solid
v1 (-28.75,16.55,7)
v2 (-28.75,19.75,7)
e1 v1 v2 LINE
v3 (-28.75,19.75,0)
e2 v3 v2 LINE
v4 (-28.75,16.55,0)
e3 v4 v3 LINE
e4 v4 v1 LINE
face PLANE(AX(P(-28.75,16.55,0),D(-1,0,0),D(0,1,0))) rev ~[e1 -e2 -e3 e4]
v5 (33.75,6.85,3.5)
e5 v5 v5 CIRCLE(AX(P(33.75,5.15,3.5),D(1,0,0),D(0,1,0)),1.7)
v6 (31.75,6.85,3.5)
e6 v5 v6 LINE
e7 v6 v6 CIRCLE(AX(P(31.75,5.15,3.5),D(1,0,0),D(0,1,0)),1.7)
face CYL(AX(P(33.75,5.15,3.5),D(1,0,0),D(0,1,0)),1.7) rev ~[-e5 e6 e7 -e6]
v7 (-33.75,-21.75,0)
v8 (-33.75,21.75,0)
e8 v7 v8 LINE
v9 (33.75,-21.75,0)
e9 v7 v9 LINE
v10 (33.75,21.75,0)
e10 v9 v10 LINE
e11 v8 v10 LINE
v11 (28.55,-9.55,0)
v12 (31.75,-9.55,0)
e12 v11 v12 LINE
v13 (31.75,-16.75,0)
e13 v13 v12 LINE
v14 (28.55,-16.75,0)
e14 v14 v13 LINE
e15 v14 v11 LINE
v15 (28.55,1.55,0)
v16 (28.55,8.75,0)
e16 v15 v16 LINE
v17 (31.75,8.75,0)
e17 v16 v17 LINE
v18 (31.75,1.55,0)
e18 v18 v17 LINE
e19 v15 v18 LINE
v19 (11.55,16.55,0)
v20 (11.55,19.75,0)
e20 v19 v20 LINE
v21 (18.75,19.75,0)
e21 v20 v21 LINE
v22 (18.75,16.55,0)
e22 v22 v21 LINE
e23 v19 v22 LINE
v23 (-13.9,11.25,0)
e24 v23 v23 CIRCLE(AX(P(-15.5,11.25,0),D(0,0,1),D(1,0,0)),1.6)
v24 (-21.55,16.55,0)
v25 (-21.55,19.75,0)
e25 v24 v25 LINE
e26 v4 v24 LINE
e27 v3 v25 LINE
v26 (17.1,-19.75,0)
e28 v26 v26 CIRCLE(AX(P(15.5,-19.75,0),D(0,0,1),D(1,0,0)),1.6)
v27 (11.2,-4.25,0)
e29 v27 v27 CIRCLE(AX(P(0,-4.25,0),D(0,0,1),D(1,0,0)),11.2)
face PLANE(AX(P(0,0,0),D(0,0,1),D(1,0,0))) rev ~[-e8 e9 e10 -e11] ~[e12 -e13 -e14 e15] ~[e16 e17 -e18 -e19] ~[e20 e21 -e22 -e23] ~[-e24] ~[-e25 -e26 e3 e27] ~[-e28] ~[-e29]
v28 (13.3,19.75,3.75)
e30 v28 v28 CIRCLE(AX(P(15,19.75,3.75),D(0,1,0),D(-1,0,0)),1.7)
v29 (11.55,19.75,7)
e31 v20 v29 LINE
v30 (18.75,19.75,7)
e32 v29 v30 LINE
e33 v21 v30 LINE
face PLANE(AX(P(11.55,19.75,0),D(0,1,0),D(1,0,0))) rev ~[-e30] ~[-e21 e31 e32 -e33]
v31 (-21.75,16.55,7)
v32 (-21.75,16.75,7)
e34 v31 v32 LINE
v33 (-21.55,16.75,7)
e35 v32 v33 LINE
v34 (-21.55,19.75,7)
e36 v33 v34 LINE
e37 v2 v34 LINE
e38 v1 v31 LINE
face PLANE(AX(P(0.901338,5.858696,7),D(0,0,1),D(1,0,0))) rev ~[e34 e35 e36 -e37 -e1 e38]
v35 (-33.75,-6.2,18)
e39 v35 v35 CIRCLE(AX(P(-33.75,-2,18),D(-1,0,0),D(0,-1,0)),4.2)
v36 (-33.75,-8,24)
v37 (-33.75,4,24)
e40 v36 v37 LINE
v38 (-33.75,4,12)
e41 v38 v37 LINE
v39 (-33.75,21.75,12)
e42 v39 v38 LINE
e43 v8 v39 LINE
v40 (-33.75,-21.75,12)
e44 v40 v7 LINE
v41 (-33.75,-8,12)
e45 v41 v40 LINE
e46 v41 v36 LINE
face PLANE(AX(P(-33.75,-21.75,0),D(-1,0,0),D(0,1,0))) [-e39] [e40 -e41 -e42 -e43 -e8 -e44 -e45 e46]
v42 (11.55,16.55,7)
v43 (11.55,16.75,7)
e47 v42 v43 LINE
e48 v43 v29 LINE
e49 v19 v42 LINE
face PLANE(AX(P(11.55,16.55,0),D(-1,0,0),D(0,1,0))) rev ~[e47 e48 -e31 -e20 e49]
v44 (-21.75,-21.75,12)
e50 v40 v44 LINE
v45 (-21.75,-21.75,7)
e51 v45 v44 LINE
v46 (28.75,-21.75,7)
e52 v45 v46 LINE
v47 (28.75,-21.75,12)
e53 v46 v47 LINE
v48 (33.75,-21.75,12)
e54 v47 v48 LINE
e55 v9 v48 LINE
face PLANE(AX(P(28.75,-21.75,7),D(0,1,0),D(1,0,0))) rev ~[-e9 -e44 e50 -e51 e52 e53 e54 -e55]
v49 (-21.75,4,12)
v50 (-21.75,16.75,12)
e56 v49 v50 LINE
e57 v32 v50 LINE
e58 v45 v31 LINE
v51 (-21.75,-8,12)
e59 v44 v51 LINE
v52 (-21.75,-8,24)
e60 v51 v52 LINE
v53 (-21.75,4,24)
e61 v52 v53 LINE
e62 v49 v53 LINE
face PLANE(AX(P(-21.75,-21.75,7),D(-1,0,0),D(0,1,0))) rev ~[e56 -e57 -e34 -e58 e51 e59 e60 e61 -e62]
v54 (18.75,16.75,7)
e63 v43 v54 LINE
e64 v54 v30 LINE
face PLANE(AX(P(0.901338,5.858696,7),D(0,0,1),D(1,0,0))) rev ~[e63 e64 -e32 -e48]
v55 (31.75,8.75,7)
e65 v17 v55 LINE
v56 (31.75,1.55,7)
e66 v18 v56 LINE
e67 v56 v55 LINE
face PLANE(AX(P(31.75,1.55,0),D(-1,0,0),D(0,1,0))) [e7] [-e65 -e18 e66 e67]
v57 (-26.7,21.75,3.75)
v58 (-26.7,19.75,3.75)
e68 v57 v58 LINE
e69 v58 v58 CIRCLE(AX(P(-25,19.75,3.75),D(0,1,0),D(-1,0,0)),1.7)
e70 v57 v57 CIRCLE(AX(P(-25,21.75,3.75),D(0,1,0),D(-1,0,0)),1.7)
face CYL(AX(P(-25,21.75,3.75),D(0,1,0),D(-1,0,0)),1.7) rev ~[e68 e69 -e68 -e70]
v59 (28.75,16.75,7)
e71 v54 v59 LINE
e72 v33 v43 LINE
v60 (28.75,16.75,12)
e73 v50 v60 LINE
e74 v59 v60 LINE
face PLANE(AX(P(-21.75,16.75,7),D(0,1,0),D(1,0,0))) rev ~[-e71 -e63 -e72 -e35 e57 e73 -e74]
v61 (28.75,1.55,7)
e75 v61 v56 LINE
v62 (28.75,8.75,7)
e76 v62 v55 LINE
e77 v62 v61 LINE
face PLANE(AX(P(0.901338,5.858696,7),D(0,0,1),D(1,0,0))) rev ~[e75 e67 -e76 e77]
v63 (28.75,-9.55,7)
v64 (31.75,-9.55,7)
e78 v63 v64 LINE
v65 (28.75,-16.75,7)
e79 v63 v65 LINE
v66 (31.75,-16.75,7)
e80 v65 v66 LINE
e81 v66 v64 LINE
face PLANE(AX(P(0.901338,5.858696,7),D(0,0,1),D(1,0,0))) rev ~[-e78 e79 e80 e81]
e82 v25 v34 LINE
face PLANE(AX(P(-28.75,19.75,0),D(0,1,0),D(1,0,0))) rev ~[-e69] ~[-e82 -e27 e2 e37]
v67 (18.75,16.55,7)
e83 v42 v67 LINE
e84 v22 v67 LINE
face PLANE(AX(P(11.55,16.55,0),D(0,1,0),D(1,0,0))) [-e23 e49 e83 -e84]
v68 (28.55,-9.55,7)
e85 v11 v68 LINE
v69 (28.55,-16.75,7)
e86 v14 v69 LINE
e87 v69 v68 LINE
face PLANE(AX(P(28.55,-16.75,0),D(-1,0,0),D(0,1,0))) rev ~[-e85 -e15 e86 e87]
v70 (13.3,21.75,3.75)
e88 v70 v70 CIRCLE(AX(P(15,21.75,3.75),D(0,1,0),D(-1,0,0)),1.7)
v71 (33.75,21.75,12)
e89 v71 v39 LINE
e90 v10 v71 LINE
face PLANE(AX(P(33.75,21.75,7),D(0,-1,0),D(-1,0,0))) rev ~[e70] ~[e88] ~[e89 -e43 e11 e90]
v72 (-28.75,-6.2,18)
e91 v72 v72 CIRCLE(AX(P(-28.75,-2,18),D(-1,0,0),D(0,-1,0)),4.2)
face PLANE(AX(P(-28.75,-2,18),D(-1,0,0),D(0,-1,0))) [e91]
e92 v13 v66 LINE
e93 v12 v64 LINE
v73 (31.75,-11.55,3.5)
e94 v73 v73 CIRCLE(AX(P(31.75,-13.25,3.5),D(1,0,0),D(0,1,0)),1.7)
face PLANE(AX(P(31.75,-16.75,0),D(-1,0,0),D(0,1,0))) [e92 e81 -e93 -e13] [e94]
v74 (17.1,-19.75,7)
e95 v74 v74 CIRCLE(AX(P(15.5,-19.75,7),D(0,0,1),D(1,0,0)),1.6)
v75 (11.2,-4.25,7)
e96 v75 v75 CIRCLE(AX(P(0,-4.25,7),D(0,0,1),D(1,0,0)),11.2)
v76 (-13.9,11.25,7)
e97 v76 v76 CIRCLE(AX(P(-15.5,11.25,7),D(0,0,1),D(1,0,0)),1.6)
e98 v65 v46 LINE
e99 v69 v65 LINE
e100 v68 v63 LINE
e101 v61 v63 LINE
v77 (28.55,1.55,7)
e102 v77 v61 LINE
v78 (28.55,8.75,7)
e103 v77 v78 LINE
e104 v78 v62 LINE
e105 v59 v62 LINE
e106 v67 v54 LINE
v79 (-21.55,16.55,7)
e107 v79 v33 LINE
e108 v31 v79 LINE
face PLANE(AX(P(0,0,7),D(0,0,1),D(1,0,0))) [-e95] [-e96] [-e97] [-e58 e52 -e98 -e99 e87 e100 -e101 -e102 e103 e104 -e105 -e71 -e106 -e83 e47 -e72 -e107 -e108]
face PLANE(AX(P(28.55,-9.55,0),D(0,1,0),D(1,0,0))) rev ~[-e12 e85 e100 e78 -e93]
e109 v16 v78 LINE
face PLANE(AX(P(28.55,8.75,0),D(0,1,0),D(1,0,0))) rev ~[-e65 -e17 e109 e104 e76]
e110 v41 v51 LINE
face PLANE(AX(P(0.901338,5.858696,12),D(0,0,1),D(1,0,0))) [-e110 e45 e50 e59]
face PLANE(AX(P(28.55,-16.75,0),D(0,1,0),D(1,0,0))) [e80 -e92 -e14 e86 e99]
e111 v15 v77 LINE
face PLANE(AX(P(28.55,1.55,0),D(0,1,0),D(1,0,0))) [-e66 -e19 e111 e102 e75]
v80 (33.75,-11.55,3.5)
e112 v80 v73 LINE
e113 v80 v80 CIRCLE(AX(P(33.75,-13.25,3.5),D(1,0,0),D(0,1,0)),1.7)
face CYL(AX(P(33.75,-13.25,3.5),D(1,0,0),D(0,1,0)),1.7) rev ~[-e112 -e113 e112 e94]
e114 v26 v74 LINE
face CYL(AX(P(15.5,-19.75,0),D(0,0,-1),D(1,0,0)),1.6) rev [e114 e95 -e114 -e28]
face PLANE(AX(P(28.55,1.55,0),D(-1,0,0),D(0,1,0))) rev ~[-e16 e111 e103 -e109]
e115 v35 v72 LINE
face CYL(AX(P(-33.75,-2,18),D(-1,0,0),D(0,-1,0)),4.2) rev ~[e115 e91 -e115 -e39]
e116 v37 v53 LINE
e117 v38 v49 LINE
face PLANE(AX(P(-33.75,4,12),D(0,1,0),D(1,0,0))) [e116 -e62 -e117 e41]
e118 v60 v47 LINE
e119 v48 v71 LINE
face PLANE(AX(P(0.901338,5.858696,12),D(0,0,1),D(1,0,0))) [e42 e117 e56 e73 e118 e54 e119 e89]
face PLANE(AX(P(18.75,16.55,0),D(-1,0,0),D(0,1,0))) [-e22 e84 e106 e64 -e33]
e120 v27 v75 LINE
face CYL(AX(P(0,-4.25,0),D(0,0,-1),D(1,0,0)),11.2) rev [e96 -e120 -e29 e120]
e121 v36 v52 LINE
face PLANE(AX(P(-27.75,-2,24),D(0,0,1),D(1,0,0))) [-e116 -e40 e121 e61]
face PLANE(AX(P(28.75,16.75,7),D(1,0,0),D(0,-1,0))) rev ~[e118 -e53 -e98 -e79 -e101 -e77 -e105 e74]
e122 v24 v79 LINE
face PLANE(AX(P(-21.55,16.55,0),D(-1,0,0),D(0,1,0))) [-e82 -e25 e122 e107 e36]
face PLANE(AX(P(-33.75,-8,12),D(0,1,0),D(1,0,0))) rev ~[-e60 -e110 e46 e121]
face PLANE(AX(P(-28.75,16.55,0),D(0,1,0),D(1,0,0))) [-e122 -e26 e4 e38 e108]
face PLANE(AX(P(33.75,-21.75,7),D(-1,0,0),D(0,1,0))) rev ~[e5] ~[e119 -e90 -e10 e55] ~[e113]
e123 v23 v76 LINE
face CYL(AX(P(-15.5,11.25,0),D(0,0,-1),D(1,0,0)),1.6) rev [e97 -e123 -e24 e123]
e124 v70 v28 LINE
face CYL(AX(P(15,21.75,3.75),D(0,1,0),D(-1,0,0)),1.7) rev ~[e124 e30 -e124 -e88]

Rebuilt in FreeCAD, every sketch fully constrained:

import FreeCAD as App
import Part
import Sketcher

V = App.Vector


def add_polygon(sketch, points):
    """Adds a closed chain of lines whose ends are joined by coincident constraints."""
    first, n = sketch.GeometryCount, len(points)
    for a, b in zip(points, points[1:] + points[:1]):
        sketch.addGeometry(Part.LineSegment(App.Vector(*a, 0), App.Vector(*b, 0)), False)
    for i in range(n):
        sketch.addConstraint(Sketcher.Constraint("Coincident", first + i, 2, first + (i + 1) % n, 1))

doc = App.newDocument("Part")
params = doc.addObject("Spreadsheet::Sheet", "Params")
for row, (alias, value) in enumerate([
    ("sketch1_diameter", "22.4 mm"),
    ("sketch1_diameter2", "3.2 mm"),
    ("sketch1_width", "67.5 mm"),
    ("sketch1_width2", "3.2 mm"),
    ("sketch1_width3", "7.2 mm"),
    ("pad1_length", "7 mm"),
    ("sketch2_width", "5 mm"),
    ("sketch2_width2", "12 mm"),
    ("sketch2_width3", "67.5 mm"),
    ("sketch2_height", "43.5 mm"),
    ("sketch2_height2", "38.5 mm"),
    ("pad2_length", "5 mm"),
    ("sketch3_width", "12 mm"),
    ("pad3_length", "12 mm"),
    ("sketch4_diameter", "8.4 mm"),
    ("pocket1_length", "5 mm"),
    ("sketch5_diameter", "3.4 mm"),
    ("pocket2_length", "5 mm"),
    ("sketch6_diameter", "3.4 mm"),
    ("pocket3_length", "5 mm"),
], start=1):
    params.set(f"A{row}", alias)
    params.set(f"B{row}", "=" + value)
    params.setAlias(f"B{row}", alias)

body = doc.addObject("PartDesign::Body", "Body")

sketch1 = doc.addObject("Sketcher::SketchObject", "Sketch")
body.addObject(sketch1)
sketch1.AttachmentSupport = (doc.XY_Plane, [""])
sketch1.MapMode = "FlatFace"
add_polygon(sketch1, [(-33.8, 21.8), (-33.8, -21.8), (33.8, -21.8), (33.8, 21.8)])
sketch1.addGeometry(Part.Circle(V(0, -4.2, 0), V(0, 0, 1), 11.2), False)
sketch1.addGeometry(Part.Circle(V(15.5, -19.8, 0), V(0, 0, 1), 1.6), False)
add_polygon(sketch1, [(31.8, -16.8), (28.6, -16.8), (28.6, -9.6), (31.8, -9.6)])
sketch1.addGeometry(Part.Circle(V(-15.5, 11.2, 0), V(0, 0, 1), 1.6), False)
add_polygon(sketch1, [(-21.6, 16.6), (-28.8, 16.6), (-28.8, 19.8), (-21.6, 19.8)])
add_polygon(sketch1, [(31.8, 1.6), (28.6, 1.6), (28.6, 8.8), (31.8, 8.8)])
add_polygon(sketch1, [(18.8, 16.6), (11.6, 16.6), (11.6, 19.8), (18.8, 19.8)])
sketch1.addConstraint(Sketcher.Constraint("Vertical", 0))
sketch1.addConstraint(Sketcher.Constraint("Horizontal", 1))
sketch1.addConstraint(Sketcher.Constraint("Vertical", 2))
sketch1.addConstraint(Sketcher.Constraint("Horizontal", 3))
sketch1.addConstraint(Sketcher.Constraint("Horizontal", 6))
sketch1.addConstraint(Sketcher.Constraint("Vertical", 7))
sketch1.addConstraint(Sketcher.Constraint("Horizontal", 8))
sketch1.addConstraint(Sketcher.Constraint("Vertical", 9))
sketch1.addConstraint(Sketcher.Constraint("Horizontal", 11))
sketch1.addConstraint(Sketcher.Constraint("Vertical", 12))
sketch1.addConstraint(Sketcher.Constraint("Horizontal", 13))
sketch1.addConstraint(Sketcher.Constraint("Vertical", 14))
sketch1.addConstraint(Sketcher.Constraint("Horizontal", 15))
sketch1.addConstraint(Sketcher.Constraint("Vertical", 16))
sketch1.addConstraint(Sketcher.Constraint("Horizontal", 17))
sketch1.addConstraint(Sketcher.Constraint("Vertical", 18))
sketch1.addConstraint(Sketcher.Constraint("Horizontal", 19))
sketch1.addConstraint(Sketcher.Constraint("Vertical", 20))
sketch1.addConstraint(Sketcher.Constraint("Horizontal", 21))
sketch1.addConstraint(Sketcher.Constraint("Vertical", 22))
sketch1.addConstraint(Sketcher.Constraint("Equal", 5, 10))
sketch1.addConstraint(Sketcher.Constraint("Symmetric", 0, 2, 2, 2, -1, 1))
sketch1.addConstraint(Sketcher.Constraint("PointOnObject", 4, 3, -2))
sketch1.addConstraint(Sketcher.Constraint("Horizontal", 14, 2, 19, 2))
sketch1.addConstraint(Sketcher.Constraint("Horizontal", 13, 2, 20, 2))
sketch1.addConstraint(Sketcher.Constraint("Vertical", 7, 2, 15, 2))
sketch1.addConstraint(Sketcher.Constraint("Vertical", 9, 2, 17, 2))
sketch1.addConstraint(Sketcher.Constraint("Equal", 13, 19))
sketch1.addConstraint(Sketcher.Constraint("Equal", 21, 7))
sketch1.addConstraint(Sketcher.Constraint("Equal", 17, 12))
sketch1.addConstraint(Sketcher.Constraint("Equal", 9, 16))
sketch1.addConstraint(Sketcher.Constraint("Diameter", 4, 22.4))
sketch1.addConstraint(Sketcher.Constraint("Diameter", 5, 3.2))
sketch1.addConstraint(Sketcher.Constraint("DistanceX", 1, 1, 1, 2, 67.5))
sketch1.addConstraint(Sketcher.Constraint("DistanceX", 6, 2, 6, 1, 3.2))
sketch1.addConstraint(Sketcher.Constraint("DistanceX", 11, 2, 11, 1, 7.2))
sketch1.addConstraint(Sketcher.Constraint("DistanceY", 0, 2, 0, 1, 43.5))
sketch1.addConstraint(Sketcher.Constraint("DistanceX", 10, 3, 5, 3, 31.0))
sketch1.addConstraint(Sketcher.Constraint("DistanceY", 5, 3, 10, 3, 31.0))
sketch1.addConstraint(Sketcher.Constraint("DistanceY", 0, 2, 10, 3, 33.0))
sketch1.addConstraint(Sketcher.Constraint("DistanceY", 4, 3, 2, 2, 26.0))
sketch1.addConstraint(Sketcher.Constraint("DistanceY", 1, 2, 6, 2, 5.0))
sketch1.addConstraint(Sketcher.Constraint("DistanceX", 8, 2, 1, 2, 2.0))
sketch1.addConstraint(Sketcher.Constraint("DistanceX", 3, 2, 11, 2, 5.0))
sketch1.addConstraint(Sketcher.Constraint("DistanceY", 12, 2, 3, 2, 2.0))
sketch1.addConstraint(Sketcher.Constraint("DistanceY", 16, 2, 2, 2, 13.0))
sketch1.addConstraint(Sketcher.Constraint("DistanceX", 19, 2, 16, 2, 17.0))
sketch1.addConstraint(Sketcher.Constraint("DistanceX", -1, 1, 5, 3, 15.5))
sketch1.setExpression("Constraints[51]", "Params.sketch1_diameter")
sketch1.setExpression("Constraints[52]", "Params.sketch1_diameter2")
sketch1.setExpression("Constraints[53]", "Params.sketch1_width")
sketch1.setExpression("Constraints[54]", "Params.sketch1_width2")
sketch1.setExpression("Constraints[55]", "Params.sketch1_width3")
pad1 = doc.addObject("PartDesign::Pad", "Pad")
body.addObject(pad1)
pad1.Profile = sketch1
pad1.setExpression("Length", "Params.pad1_length")

sketch2 = doc.addObject("Sketcher::SketchObject", "Sketch001")
body.addObject(sketch2)
sketch2.AttachmentSupport = (doc.XY_Plane, [""])
sketch2.MapMode = "FlatFace"
sketch2.AttachmentOffset = App.Placement(V(0, 0, 7), App.Rotation())
add_polygon(sketch2, [(29, -22), (34, -22), (34, 22), (-34, 22), (-34, -22), (-22, -22), (-22, 17), (29, 17)])
sketch2.addConstraint(Sketcher.Constraint("Horizontal", 0))
sketch2.addConstraint(Sketcher.Constraint("Vertical", 1))
sketch2.addConstraint(Sketcher.Constraint("Horizontal", 2))
sketch2.addConstraint(Sketcher.Constraint("Vertical", 3))
sketch2.addConstraint(Sketcher.Constraint("Horizontal", 4))
sketch2.addConstraint(Sketcher.Constraint("Vertical", 5))
sketch2.addConstraint(Sketcher.Constraint("Horizontal", 6))
sketch2.addConstraint(Sketcher.Constraint("Vertical", 7))
sketch2.addConstraint(Sketcher.Constraint("Symmetric", 0, 2, 2, 2, -1, 1))
sketch2.addConstraint(Sketcher.Constraint("Horizontal", 0, 2, 3, 2))
sketch2.addConstraint(Sketcher.Constraint("DistanceX", 0, 1, 0, 2, 5.0))
sketch2.addConstraint(Sketcher.Constraint("DistanceX", 4, 1, 4, 2, 12.0))
sketch2.addConstraint(Sketcher.Constraint("DistanceX", 2, 2, 2, 1, 67.5))
sketch2.addConstraint(Sketcher.Constraint("DistanceY", 1, 1, 1, 2, 43.5))
sketch2.addConstraint(Sketcher.Constraint("DistanceY", 5, 1, 5, 2, 38.5))
sketch2.setExpression("Constraints[18]", "Params.sketch2_width")
sketch2.setExpression("Constraints[19]", "Params.sketch2_width2")
sketch2.setExpression("Constraints[20]", "Params.sketch2_width3")
sketch2.setExpression("Constraints[21]", "Params.sketch2_height")
sketch2.setExpression("Constraints[22]", "Params.sketch2_height2")
pad2 = doc.addObject("PartDesign::Pad", "Pad001")
body.addObject(pad2)
pad2.Profile = sketch2
pad2.setExpression("Length", "Params.pad2_length")

sketch3 = doc.addObject("Sketcher::SketchObject", "Sketch002")
body.addObject(sketch3)
sketch3.AttachmentSupport = (doc.XY_Plane, [""])
sketch3.MapMode = "FlatFace"
sketch3.AttachmentOffset = App.Placement(V(0, 0, 12), App.Rotation())
add_polygon(sketch3, [(-34, 4), (-34, -8), (-22, -8), (-22, 4)])
sketch3.addConstraint(Sketcher.Constraint("Vertical", 0))
sketch3.addConstraint(Sketcher.Constraint("Horizontal", 1))
sketch3.addConstraint(Sketcher.Constraint("Vertical", 2))
sketch3.addConstraint(Sketcher.Constraint("Horizontal", 3))
sketch3.addConstraint(Sketcher.Constraint("Equal", 3, 0))
sketch3.addConstraint(Sketcher.Constraint("DistanceX", 1, 1, 1, 2, 12.0))
sketch3.addConstraint(Sketcher.Constraint("DistanceY", 0, 2, -1, 1, 8.0))
sketch3.addConstraint(Sketcher.Constraint("DistanceX", 0, 2, -1, 1, 33.75))
sketch3.setExpression("Constraints[9]", "Params.sketch3_width")
pad3 = doc.addObject("PartDesign::Pad", "Pad002")
body.addObject(pad3)
pad3.Profile = sketch3
pad3.setExpression("Length", "Params.pad3_length")

sketch4 = doc.addObject("Sketcher::SketchObject", "Sketch003")
body.addObject(sketch4)
sketch4.AttachmentSupport = (doc.YZ_Plane, [""])
sketch4.MapMode = "FlatFace"
sketch4.AttachmentOffset = App.Placement(V(0, 0, -33.75), App.Rotation())
sketch4.addGeometry(Part.Circle(V(-2, 18, 0), V(0, 0, 1), 4.2), False)
sketch4.addConstraint(Sketcher.Constraint("Diameter", 0, 8.4))
sketch4.addConstraint(Sketcher.Constraint("DistanceX", 0, 3, -1, 1, 2.0))
sketch4.addConstraint(Sketcher.Constraint("DistanceY", -1, 1, 0, 3, 18.0))
sketch4.setExpression("Constraints[0]", "Params.sketch4_diameter")
pocket1 = doc.addObject("PartDesign::Pocket", "Pocket")
body.addObject(pocket1)
pocket1.Profile = sketch4
pocket1.setExpression("Length", "Params.pocket1_length")
pocket1.Reversed = True

sketch5 = doc.addObject("Sketcher::SketchObject", "Sketch004")
body.addObject(sketch5)
sketch5.AttachmentSupport = (doc.XZ_Plane, [""])
sketch5.MapMode = "FlatFace"
sketch5.AttachmentOffset = App.Placement(V(0, 0, -21.75), App.Rotation())
sketch5.addGeometry(Part.Circle(V(-25, 3.8, 0), V(0, 0, 1), 1.7), False)
sketch5.addGeometry(Part.Circle(V(15, 3.8, 0), V(0, 0, 1), 1.7), False)
sketch5.addConstraint(Sketcher.Constraint("Equal", 0, 1))
sketch5.addConstraint(Sketcher.Constraint("Horizontal", 0, 3, 1, 3))
sketch5.addConstraint(Sketcher.Constraint("Diameter", 0, 3.4))
sketch5.addConstraint(Sketcher.Constraint("DistanceX", 0, 3, -1, 1, 25.0))
sketch5.addConstraint(Sketcher.Constraint("DistanceX", -1, 1, 1, 3, 15.0))
sketch5.addConstraint(Sketcher.Constraint("DistanceY", -1, 1, 0, 3, 3.75))
sketch5.setExpression("Constraints[2]", "Params.sketch5_diameter")
pocket2 = doc.addObject("PartDesign::Pocket", "Pocket001")
body.addObject(pocket2)
pocket2.Profile = sketch5
pocket2.setExpression("Length", "Params.pocket2_length")
pocket2.Reversed = True

sketch6 = doc.addObject("Sketcher::SketchObject", "Sketch005")
body.addObject(sketch6)
sketch6.AttachmentSupport = (doc.YZ_Plane, [""])
sketch6.MapMode = "FlatFace"
sketch6.AttachmentOffset = App.Placement(V(0, 0, 33.75), App.Rotation())
sketch6.addGeometry(Part.Circle(V(5.2, 3.5, 0), V(0, 0, 1), 1.7), False)
sketch6.addGeometry(Part.Circle(V(-13.2, 3.5, 0), V(0, 0, 1), 1.7), False)
sketch6.addConstraint(Sketcher.Constraint("Equal", 0, 1))
sketch6.addConstraint(Sketcher.Constraint("Horizontal", 0, 3, 1, 3))
sketch6.addConstraint(Sketcher.Constraint("Diameter", 0, 3.4))
sketch6.addConstraint(Sketcher.Constraint("DistanceY", -1, 1, 0, 3, 3.5))
sketch6.addConstraint(Sketcher.Constraint("DistanceX", 1, 3, 0, 3, 18.4))
sketch6.addConstraint(Sketcher.Constraint("DistanceX", -1, 1, 0, 3, 5.15))
sketch6.setExpression("Constraints[2]", "Params.sketch6_diameter")
pocket3 = doc.addObject("PartDesign::Pocket", "Pocket002")
body.addObject(pocket3)
pocket3.Profile = sketch6
pocket3.setExpression("Length", "Params.pocket3_length")

doc.recompute()
